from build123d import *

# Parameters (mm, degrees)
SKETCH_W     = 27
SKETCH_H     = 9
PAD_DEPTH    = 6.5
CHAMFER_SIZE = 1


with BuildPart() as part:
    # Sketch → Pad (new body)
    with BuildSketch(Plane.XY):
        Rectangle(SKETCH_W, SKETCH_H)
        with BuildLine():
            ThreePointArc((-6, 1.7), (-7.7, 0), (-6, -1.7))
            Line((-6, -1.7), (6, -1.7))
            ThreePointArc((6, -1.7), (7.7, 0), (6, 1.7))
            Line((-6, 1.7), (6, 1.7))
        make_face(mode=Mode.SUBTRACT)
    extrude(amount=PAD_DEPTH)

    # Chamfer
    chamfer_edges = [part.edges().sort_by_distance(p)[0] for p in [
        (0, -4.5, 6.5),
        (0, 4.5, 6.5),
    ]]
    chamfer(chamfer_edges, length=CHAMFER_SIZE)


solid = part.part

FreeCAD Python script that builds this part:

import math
import FreeCAD as App
import Part
import Sketcher


def edges_at(feature, points):
    """Names of the edges that pass closest to the given points."""
    edges = feature.Shape.Edges
    near = lambda p: min(range(len(edges)), key=lambda i: edges[i].distToShape(Part.Vertex(*p))[0])
    return sorted({f"Edge{near(p) + 1}" for p in points})

doc = App.newDocument("Part")
body = doc.addObject("PartDesign::Body", "Body")

# Sketch on XY plane
sketch1 = doc.addObject("Sketcher::SketchObject", "Sketch")
body.addObject(sketch1)
sketch1.AttachmentSupport = (doc.XY_Plane, [""])
sketch1.MapMode = "FlatFace"
sketch1.addGeometry([
    Part.LineSegment(App.Vector(-13.5, 4.5, 0), App.Vector(-13.5, -4.5, 0)),  # 0
    Part.LineSegment(App.Vector(-13.5, -4.5, 0), App.Vector(13.5, -4.5, 0)),  # 1
    Part.LineSegment(App.Vector(13.5, -4.5, 0), App.Vector(13.5, 4.5, 0)),  # 2
    Part.LineSegment(App.Vector(13.5, 4.5, 0), App.Vector(-13.5, 4.5, 0)),  # 3
    Part.ArcOfCircle(Part.Circle(App.Vector(-6, 0, 0), App.Vector(0, 0, 1), 1.7), math.radians(90), math.radians(270)),  # 4
    Part.LineSegment(App.Vector(-6, 1.7, 0), App.Vector(6, 1.7, 0)),  # 5
    Part.ArcOfCircle(Part.Circle(App.Vector(6, 0, 0), App.Vector(0, 0, 1), 1.7), math.radians(-90), math.radians(90)),  # 6
    Part.LineSegment(App.Vector(6, -1.7, 0), App.Vector(-6, -1.7, 0)),  # 7
], False)
sketch1.addConstraint([
    Sketcher.Constraint("Coincident", 0, 2, 1, 1),
    Sketcher.Constraint("Coincident", 1, 2, 2, 1),
    Sketcher.Constraint("Coincident", 2, 2, 3, 1),
    Sketcher.Constraint("Coincident", 3, 2, 0, 1),
    Sketcher.Constraint("Tangent", 4, 1, 5, 1),
    Sketcher.Constraint("Tangent", 5, 2, 6, 2),
    Sketcher.Constraint("Tangent", 6, 1, 7, 1),
    Sketcher.Constraint("Tangent", 7, 2, 4, 2),
    Sketcher.Constraint("Vertical", 0),
    Sketcher.Constraint("Horizontal", 1),
    Sketcher.Constraint("Vertical", 2),
    Sketcher.Constraint("Horizontal", 3),
    Sketcher.Constraint("Horizontal", 5),
    Sketcher.Constraint("Horizontal", 7),
    Sketcher.Constraint("Symmetric", 4, 3, 6, 3, -1, 1),
    Sketcher.Constraint("Symmetric", 0, 2, 2, 2, -1, 1),
    Sketcher.Constraint("Radius", 4, 1.7),
    Sketcher.Constraint("DistanceX", 1, 1, 1, 2, 27.0),
    Sketcher.Constraint("DistanceX", 5, 1, 5, 2, 12.0),
    Sketcher.Constraint("DistanceY", 0, 2, 0, 1, 9.0),
])
pad1 = doc.addObject("PartDesign::Pad", "Pad")
body.addObject(pad1)
pad1.Profile = sketch1
pad1.Length = 6.5
doc.recompute()

chamfer = doc.addObject("PartDesign::Chamfer", "Chamfer")
body.addObject(chamfer)
chamfer.Base = (pad1, edges_at(pad1, [(0, -4.5, 6.5), (0, 4.5, 6.5)]))
chamfer.Size = 1

doc.recompute()
